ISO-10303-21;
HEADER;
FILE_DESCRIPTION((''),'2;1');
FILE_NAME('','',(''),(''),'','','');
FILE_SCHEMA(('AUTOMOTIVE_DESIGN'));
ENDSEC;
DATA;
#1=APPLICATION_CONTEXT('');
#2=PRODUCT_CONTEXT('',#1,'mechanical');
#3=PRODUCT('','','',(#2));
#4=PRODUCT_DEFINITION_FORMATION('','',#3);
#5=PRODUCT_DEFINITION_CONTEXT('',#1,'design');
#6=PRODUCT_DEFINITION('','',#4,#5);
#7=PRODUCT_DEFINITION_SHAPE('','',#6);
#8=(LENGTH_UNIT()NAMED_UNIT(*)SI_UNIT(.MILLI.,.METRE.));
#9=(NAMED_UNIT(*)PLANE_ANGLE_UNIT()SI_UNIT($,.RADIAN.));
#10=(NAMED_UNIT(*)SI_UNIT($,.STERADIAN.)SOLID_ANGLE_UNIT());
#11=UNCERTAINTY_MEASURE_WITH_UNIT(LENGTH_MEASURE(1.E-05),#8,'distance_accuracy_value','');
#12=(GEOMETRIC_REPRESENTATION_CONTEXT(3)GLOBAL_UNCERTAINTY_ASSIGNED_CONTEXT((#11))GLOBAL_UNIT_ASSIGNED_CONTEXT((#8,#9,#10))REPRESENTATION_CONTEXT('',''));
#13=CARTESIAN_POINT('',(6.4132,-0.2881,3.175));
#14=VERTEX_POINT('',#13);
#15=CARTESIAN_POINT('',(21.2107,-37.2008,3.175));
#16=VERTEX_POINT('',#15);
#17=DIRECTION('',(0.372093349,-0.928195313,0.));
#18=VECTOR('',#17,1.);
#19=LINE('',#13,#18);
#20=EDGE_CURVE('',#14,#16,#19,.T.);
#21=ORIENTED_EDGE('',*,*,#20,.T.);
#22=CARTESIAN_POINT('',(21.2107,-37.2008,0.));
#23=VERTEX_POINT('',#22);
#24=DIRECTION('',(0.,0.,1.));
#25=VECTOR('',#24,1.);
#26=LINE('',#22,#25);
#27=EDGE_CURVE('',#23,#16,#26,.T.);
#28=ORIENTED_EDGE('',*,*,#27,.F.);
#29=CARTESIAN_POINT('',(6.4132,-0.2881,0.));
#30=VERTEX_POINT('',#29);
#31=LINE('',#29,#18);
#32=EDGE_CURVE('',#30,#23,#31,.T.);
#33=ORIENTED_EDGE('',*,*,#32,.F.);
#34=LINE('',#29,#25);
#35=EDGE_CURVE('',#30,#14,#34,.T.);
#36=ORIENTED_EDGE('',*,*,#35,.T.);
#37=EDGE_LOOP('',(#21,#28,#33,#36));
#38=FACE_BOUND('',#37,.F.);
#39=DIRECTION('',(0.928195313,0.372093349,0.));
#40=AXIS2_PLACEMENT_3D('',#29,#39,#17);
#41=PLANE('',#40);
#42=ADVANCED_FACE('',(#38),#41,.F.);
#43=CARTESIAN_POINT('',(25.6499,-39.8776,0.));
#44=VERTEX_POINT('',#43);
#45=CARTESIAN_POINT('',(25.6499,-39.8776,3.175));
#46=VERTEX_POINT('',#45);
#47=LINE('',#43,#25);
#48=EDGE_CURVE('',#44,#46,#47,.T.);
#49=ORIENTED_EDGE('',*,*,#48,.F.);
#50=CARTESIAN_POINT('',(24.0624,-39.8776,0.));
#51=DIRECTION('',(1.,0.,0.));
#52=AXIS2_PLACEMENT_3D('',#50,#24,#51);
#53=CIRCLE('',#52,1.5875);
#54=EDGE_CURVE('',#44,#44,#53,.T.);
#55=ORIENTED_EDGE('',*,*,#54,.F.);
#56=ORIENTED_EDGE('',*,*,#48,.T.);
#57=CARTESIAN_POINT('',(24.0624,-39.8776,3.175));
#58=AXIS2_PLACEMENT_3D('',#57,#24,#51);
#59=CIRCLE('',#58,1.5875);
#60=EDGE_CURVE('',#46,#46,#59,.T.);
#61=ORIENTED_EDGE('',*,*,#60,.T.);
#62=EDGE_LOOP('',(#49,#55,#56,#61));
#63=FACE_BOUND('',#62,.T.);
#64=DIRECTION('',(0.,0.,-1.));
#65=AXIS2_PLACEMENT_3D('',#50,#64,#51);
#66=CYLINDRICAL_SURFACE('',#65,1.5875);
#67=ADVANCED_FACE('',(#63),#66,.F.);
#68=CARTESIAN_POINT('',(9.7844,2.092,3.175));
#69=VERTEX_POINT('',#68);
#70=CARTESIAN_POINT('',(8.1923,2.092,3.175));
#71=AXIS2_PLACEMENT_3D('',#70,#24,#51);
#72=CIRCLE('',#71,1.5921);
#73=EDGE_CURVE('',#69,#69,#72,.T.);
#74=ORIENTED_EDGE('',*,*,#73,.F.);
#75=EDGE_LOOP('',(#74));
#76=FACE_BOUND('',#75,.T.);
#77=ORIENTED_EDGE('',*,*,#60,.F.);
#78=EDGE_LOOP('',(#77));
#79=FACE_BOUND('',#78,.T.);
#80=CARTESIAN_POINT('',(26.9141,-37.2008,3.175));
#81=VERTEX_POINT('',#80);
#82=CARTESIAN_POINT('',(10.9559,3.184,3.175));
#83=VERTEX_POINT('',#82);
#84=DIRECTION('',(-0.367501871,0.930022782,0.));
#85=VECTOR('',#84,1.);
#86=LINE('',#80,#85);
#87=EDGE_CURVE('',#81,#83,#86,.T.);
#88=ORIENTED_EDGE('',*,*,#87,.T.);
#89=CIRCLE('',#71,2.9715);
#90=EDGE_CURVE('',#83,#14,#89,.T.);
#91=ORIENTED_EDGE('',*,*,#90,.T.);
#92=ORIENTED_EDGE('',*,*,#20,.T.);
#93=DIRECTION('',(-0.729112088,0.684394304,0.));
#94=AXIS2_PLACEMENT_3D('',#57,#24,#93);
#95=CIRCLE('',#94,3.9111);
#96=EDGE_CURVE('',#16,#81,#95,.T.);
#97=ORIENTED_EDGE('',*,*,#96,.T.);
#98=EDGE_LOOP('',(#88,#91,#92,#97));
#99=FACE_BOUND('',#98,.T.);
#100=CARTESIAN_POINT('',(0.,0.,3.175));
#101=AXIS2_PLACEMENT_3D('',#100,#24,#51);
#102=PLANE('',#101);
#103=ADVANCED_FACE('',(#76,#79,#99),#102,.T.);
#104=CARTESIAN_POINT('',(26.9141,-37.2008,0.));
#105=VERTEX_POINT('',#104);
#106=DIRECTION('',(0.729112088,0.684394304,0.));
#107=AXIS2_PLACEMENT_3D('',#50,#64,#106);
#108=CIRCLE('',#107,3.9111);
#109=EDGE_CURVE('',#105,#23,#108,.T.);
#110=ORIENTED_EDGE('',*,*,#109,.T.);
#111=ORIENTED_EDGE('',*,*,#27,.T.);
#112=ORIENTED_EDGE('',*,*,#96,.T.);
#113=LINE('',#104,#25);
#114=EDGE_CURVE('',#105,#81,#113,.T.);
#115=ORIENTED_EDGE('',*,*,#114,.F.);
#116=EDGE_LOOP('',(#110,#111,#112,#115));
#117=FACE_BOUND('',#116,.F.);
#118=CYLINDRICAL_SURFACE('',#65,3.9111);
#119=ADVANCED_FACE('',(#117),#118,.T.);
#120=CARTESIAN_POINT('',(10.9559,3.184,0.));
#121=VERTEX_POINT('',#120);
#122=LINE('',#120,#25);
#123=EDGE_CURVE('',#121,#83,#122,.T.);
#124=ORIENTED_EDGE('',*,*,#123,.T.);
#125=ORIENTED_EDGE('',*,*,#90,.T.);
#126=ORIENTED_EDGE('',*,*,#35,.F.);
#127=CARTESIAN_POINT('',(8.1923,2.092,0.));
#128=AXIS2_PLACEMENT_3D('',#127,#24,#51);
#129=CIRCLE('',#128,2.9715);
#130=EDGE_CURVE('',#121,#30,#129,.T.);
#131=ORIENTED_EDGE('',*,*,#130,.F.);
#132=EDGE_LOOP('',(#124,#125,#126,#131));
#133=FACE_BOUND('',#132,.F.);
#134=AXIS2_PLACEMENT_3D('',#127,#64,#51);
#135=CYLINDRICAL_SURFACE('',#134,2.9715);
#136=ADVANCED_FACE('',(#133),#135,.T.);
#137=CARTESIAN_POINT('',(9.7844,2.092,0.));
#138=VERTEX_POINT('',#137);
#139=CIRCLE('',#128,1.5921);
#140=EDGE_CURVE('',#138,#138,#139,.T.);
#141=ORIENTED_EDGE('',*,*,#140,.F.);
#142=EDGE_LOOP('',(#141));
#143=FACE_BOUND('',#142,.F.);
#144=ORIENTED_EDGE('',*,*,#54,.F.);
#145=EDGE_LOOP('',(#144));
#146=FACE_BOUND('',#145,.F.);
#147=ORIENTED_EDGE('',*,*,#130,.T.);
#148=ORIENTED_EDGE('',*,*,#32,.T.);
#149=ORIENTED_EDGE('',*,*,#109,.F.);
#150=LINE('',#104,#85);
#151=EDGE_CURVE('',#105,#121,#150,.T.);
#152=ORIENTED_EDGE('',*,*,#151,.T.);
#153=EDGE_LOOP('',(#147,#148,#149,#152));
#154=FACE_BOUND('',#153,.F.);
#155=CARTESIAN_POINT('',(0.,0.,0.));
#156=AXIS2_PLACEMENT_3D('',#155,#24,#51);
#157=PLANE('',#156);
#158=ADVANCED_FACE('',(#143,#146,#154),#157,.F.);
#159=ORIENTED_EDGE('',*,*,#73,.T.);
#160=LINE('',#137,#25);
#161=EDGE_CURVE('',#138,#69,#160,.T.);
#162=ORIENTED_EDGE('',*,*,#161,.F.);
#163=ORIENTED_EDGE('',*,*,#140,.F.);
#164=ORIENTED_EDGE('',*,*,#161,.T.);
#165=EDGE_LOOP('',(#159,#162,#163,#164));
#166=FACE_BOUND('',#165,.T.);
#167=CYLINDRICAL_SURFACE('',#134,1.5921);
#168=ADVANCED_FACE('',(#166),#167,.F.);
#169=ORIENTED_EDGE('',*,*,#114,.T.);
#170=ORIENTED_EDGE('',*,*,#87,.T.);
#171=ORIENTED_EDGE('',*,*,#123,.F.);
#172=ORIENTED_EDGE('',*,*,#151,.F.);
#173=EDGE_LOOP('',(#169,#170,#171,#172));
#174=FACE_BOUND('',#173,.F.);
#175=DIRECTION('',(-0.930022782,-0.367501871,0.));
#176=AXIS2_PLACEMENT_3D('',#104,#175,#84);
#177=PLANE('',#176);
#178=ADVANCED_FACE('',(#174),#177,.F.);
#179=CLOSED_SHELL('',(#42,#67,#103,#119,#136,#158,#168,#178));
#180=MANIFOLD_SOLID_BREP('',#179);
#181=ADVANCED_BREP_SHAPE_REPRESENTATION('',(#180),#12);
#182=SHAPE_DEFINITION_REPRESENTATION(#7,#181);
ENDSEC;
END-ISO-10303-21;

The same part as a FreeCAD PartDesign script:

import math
import FreeCAD as App
import Part
import Sketcher

V = App.Vector
Q = App.Units.Quantity

doc = App.newDocument("Part")
body = doc.addObject("PartDesign::Body", "Body")

sketch1 = body.newObject("Sketcher::SketchObject", "Sketch")
sketch1.AttachmentSupport = (doc.getObject("XY_Plane"), [""])
sketch1.MapMode = "FlatFace"
sketch1.addGeometry(Part.ArcOfCircle(Part.Circle(V(8.1923, 2.092, 0), V(0, 0, 1), 2.9715), math.radians(21.560799), math.radians(233.222268)), False)
sketch1.addGeometry(Part.LineSegment(V(6.4132, -0.2881, 0), V(21.2107, -37.2008, 0)), False)
sketch1.addGeometry(Part.ArcOfCircle(Part.Circle(V(24.0624, -39.8776, 0), V(0, 0, 1), 3.9111), math.radians(136.812009), math.radians(403.187991)), False)
sketch1.addGeometry(Part.LineSegment(V(26.9141, -37.2008, 0), V(10.9559, 3.184, 0)), False)
sketch1.addGeometry(Part.Circle(V(8.1923, 2.092, 0), V(0, 0, 1), 1.5921), False)
sketch1.addGeometry(Part.Circle(V(24.0624, -39.8776, 0), V(0, 0, 1), 1.5875), False)
sketch1.addConstraint(Sketcher.Constraint("Coincident", 0, 2, 1, 1))
sketch1.addConstraint(Sketcher.Constraint("Coincident", 1, 2, 2, 1))
sketch1.addConstraint(Sketcher.Constraint("Coincident", 2, 2, 3, 1))
sketch1.addConstraint(Sketcher.Constraint("Coincident", 3, 2, 0, 1))
sketch1.addConstraint(Sketcher.Constraint("Coincident", 4, 3, 0, 3))
sketch1.addConstraint(Sketcher.Constraint("Coincident", 5, 3, 2, 3))
sketch1.addConstraint(Sketcher.Constraint("Diameter", 5, Q("0.125 in")))
sketch1.addConstraint(Sketcher.Constraint("Radius", 0, Q("0.117 in")))
sketch1.addConstraint(Sketcher.Constraint("Diameter", 4, 3.1842))
sketch1.addConstraint(Sketcher.Constraint("Radius", 2, 3.911))
sketch1.addConstraint(Sketcher.Constraint("DistanceY", 0, 3, 3, 2, Q("0.043 in")))
sketch1.addConstraint(Sketcher.Constraint("DistanceX", -1, 1, 0, 2, Q("0.2525 in")))
sketch1.addConstraint(Sketcher.Constraint("DistanceY", 1, 2, -1, 1, Q("1.4646 in")))
sketch1.addConstraint(Sketcher.Constraint("DistanceX", -1, 1, 2, 2, Q("1.0596 in")))
sketch1.addConstraint(Sketcher.Constraint("DistanceY", 2, 2, -1, 1, Q("1.4646 in")))
sketch1.addConstraint(Sketcher.Constraint("DistanceX", 0, 3, 2, 3, Q("0.6248 in")))
sketch1.addConstraint(Sketcher.Constraint("DistanceY", 0, 2, 0, 3, Q("0.0937 in")))
sketch1.addConstraint(Sketcher.Constraint("Distance", 1, 39.7682))
pad1 = body.newObject("PartDesign::Pad", "Pad")
pad1.Profile = sketch1
pad1.Length = Q("0.125 in")

doc.recompute()
